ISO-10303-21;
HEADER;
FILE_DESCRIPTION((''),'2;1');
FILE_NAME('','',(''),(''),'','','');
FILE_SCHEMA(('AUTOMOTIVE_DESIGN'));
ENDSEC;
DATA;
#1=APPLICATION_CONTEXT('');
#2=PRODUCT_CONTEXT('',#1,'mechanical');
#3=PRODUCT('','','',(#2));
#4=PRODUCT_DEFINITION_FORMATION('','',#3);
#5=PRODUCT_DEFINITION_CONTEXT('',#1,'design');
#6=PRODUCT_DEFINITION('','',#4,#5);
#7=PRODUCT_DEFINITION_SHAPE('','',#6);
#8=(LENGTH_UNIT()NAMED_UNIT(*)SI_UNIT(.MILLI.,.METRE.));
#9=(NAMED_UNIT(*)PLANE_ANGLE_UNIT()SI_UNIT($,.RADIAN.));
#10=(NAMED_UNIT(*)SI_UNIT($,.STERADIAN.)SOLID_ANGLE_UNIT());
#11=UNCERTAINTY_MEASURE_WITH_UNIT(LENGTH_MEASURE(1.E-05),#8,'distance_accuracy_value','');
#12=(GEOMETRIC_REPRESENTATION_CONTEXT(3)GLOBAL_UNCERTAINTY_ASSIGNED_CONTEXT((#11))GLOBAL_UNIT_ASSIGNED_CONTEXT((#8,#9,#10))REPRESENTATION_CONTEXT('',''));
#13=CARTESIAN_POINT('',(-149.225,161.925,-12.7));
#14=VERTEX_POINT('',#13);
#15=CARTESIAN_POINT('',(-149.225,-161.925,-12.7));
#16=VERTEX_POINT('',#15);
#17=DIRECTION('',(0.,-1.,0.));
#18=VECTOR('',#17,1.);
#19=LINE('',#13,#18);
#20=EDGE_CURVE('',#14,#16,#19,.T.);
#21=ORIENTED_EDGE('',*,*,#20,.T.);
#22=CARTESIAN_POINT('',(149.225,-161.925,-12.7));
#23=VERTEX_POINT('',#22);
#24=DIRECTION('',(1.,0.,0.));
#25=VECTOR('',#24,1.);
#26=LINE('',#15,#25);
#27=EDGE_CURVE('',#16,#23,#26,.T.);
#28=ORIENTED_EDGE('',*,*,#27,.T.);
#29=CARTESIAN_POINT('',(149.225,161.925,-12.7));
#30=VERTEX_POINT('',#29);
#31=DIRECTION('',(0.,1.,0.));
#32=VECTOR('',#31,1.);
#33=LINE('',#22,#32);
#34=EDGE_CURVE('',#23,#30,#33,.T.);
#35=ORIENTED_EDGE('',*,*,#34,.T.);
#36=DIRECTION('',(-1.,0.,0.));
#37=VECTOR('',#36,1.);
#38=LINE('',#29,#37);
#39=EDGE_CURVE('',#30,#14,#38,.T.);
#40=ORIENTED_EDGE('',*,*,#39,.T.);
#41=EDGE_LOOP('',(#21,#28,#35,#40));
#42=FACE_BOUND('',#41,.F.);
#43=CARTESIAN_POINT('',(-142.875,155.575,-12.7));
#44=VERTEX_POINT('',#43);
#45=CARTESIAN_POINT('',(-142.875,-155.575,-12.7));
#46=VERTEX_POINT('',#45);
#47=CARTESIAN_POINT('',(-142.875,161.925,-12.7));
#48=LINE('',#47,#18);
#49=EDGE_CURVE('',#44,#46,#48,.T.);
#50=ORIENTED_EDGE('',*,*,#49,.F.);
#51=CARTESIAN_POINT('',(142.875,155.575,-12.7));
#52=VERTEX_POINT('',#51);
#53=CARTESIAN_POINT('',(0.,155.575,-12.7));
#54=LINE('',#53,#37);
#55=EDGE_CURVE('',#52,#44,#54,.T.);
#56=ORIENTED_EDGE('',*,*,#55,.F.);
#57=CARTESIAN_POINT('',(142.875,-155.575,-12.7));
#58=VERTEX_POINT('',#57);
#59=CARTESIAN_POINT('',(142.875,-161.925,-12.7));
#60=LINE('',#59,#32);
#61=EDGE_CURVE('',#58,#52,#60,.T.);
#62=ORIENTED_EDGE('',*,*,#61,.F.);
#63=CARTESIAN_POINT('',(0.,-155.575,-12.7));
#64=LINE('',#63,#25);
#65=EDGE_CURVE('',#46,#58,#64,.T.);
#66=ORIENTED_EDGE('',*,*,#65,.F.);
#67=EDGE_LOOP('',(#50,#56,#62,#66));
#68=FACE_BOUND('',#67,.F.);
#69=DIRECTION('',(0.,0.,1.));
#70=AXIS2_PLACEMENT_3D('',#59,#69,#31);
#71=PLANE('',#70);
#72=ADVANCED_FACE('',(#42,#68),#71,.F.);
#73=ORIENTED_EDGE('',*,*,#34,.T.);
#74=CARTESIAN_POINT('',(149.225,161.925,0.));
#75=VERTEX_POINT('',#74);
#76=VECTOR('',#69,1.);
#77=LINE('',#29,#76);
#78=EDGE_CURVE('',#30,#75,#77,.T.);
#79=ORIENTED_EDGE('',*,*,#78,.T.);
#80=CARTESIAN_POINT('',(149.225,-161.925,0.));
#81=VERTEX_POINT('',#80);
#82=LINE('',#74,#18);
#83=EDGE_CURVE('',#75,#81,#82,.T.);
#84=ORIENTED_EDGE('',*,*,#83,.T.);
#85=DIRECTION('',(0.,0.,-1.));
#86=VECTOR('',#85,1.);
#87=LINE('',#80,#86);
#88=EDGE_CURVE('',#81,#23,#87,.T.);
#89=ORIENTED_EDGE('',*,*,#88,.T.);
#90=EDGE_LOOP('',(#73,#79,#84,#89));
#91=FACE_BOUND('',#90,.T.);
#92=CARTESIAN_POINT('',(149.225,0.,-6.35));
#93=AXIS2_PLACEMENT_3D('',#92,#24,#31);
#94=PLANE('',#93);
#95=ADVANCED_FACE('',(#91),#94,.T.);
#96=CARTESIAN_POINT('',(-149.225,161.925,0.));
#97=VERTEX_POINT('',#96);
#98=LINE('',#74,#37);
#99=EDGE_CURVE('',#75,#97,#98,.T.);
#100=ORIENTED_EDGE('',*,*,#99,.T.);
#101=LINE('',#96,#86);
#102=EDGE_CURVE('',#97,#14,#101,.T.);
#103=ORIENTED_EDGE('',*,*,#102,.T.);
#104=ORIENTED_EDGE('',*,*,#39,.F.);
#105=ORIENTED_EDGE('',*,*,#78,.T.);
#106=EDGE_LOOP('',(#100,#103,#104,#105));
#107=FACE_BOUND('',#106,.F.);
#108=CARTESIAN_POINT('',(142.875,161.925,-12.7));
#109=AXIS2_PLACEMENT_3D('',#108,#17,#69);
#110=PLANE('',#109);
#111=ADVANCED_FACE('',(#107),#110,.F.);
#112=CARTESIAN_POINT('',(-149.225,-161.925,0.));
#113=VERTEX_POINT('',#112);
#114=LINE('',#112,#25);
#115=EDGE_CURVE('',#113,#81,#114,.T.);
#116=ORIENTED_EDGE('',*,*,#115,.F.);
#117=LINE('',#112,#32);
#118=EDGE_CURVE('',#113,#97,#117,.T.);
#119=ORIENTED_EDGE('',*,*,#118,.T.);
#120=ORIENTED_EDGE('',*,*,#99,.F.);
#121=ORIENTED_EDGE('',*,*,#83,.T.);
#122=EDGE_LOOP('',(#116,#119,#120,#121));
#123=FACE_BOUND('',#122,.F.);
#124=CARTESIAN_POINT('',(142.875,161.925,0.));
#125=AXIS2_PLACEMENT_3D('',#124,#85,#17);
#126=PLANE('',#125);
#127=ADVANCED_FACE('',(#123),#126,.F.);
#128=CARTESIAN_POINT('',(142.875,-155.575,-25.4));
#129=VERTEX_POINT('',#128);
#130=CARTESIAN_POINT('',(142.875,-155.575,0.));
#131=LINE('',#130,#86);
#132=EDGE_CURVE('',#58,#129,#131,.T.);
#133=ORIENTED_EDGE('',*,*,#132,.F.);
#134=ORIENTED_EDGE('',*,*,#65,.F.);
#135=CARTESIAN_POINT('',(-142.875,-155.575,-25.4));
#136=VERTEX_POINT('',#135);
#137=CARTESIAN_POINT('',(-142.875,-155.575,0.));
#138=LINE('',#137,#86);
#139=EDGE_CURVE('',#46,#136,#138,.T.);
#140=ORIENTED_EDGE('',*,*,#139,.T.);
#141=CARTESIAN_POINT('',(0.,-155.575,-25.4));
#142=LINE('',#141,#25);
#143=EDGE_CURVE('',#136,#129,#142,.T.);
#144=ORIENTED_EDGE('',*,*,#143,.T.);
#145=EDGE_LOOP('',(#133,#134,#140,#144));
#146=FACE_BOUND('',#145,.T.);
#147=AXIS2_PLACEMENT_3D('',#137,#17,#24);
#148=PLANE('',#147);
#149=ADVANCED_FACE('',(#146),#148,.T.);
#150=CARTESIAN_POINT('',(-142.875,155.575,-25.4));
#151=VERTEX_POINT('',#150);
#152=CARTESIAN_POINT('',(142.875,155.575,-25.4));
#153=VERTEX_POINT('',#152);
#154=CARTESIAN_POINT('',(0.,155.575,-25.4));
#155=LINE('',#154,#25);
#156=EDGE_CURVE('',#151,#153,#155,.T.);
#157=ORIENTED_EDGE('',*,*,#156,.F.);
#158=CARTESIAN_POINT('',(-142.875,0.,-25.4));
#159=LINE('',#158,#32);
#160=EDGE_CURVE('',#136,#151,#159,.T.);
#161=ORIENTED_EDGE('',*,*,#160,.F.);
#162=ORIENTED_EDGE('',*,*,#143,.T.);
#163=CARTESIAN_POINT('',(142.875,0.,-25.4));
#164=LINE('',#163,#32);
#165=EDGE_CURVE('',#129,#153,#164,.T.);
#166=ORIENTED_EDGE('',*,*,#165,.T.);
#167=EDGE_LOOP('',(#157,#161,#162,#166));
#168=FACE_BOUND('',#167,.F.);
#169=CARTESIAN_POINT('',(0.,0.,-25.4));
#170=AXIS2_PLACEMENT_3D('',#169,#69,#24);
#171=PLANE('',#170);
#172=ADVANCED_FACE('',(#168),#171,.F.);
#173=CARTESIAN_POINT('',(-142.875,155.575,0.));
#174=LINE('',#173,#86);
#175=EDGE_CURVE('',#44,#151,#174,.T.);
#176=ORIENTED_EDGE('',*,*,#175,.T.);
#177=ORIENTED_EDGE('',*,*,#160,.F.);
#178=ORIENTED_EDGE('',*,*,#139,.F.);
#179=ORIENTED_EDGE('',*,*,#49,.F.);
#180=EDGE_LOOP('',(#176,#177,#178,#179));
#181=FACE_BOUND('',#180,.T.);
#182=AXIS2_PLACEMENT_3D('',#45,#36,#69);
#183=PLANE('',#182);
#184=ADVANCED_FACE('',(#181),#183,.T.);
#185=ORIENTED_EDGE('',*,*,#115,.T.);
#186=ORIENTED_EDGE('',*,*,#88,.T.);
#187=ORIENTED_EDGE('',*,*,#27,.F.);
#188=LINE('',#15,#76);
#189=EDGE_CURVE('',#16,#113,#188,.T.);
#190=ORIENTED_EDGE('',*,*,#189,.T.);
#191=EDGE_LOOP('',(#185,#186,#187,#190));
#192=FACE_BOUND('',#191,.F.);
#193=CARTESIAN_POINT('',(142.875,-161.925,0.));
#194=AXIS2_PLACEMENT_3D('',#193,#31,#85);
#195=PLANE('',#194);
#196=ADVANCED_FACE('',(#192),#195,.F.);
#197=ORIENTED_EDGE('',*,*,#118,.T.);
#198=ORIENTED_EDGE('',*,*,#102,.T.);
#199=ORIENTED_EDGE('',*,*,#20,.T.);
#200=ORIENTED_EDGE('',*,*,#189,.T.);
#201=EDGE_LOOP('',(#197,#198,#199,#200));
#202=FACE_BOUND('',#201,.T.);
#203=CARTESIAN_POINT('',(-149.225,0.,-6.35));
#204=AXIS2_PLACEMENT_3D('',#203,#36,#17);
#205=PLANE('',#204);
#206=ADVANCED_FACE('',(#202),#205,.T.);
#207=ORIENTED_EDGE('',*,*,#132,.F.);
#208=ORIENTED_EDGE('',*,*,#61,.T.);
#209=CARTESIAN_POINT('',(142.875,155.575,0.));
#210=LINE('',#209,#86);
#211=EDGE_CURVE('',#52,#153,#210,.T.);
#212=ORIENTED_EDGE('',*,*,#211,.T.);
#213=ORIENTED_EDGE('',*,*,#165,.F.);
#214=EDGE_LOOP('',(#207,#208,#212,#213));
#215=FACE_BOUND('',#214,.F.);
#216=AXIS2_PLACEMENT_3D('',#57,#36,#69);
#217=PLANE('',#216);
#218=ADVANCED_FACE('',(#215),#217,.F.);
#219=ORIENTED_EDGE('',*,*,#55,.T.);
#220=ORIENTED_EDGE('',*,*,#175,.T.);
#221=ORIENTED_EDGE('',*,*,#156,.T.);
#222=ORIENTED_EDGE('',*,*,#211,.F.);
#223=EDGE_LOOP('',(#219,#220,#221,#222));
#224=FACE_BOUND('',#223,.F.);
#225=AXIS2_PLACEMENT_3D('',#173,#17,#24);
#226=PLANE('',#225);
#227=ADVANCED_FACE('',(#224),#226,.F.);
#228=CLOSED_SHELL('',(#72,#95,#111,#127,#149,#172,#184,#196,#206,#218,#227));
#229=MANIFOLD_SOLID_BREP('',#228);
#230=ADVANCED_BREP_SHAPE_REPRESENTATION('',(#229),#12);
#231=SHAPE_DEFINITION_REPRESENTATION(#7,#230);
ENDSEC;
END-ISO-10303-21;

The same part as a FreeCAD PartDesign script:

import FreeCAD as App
import Part
import Sketcher

V = App.Vector
Q = App.Units.Quantity

doc = App.newDocument("Part")
body = doc.addObject("PartDesign::Body", "Body")

sketch1 = body.newObject("Sketcher::SketchObject", "Sketch")
sketch1.AttachmentSupport = (doc.getObject("XY_Plane"), [""])
sketch1.MapMode = "FlatFace"
sketch1.addGeometry(Part.LineSegment(V(-143, 156, 0), V(-143, -156, 0)), False)
sketch1.addGeometry(Part.LineSegment(V(-143, -156, 0), V(143, -156, 0)), False)
sketch1.addGeometry(Part.LineSegment(V(143, -156, 0), V(143, 156, 0)), False)
sketch1.addGeometry(Part.LineSegment(V(143, 156, 0), V(-143, 156, 0)), False)
sketch1.addConstraint(Sketcher.Constraint("Coincident", 0, 2, 1, 1))
sketch1.addConstraint(Sketcher.Constraint("Coincident", 1, 2, 2, 1))
sketch1.addConstraint(Sketcher.Constraint("Coincident", 2, 2, 3, 1))
sketch1.addConstraint(Sketcher.Constraint("Coincident", 3, 2, 0, 1))
sketch1.addConstraint(Sketcher.Constraint("Vertical", 0))
sketch1.addConstraint(Sketcher.Constraint("Horizontal", 1))
sketch1.addConstraint(Sketcher.Constraint("Vertical", 2))
sketch1.addConstraint(Sketcher.Constraint("Horizontal", 3))
sketch1.addConstraint(Sketcher.Constraint("Symmetric", 0, 2, 2, 2, -1, 1))
sketch1.addConstraint(Sketcher.Constraint("DistanceX", 1, 1, 1, 2, Q("11.25 in")))
sketch1.addConstraint(Sketcher.Constraint("DistanceY", 0, 2, 0, 1, Q("12.25 in")))
pad1 = body.newObject("PartDesign::Pad", "Pad")
pad1.Profile = sketch1
pad1.Length = Q("1 in")
pad1.Reversed = True

sketch2 = body.newObject("Sketcher::SketchObject", "Sketch001")
sketch2.AttachmentSupport = (doc.getObject("XZ_Plane"), [""])
sketch2.MapMode = "FlatFace"
sketch2.AttachmentOffset = App.Placement(V(0, 0, -6.125 * 25.4), App.Rotation())
sketch2.addGeometry(Part.LineSegment(V(143, 0, 0), V(143, -13, 0)), False)
sketch2.addGeometry(Part.LineSegment(V(143, -13, 0), V(-143, -13, 0)), False)
sketch2.addGeometry(Part.LineSegment(V(-143, -13, 0), V(-143, 0, 0)), False)
sketch2.addGeometry(Part.LineSegment(V(-143, 0, 0), V(143, 0, 0)), False)
sketch2.addConstraint(Sketcher.Constraint("Coincident", 0, 2, 1, 1))
sketch2.addConstraint(Sketcher.Constraint("Coincident", 1, 2, 2, 1))
sketch2.addConstraint(Sketcher.Constraint("Coincident", 2, 2, 3, 1))
sketch2.addConstraint(Sketcher.Constraint("Coincident", 3, 2, 0, 1))
sketch2.addConstraint(Sketcher.Constraint("Vertical", 0))
sketch2.addConstraint(Sketcher.Constraint("Horizontal", 1))
sketch2.addConstraint(Sketcher.Constraint("Vertical", 2))
sketch2.addConstraint(Sketcher.Constraint("Horizontal", 3))
sketch2.addConstraint(Sketcher.Constraint("Symmetric", 2, 2, 3, 2, -1, 1))
sketch2.addConstraint(Sketcher.Constraint("DistanceY", 0, 2, 0, 1, Q("0.5 in")))
sketch2.addConstraint(Sketcher.Constraint("DistanceX", 1, 2, 1, 1, Q("11.25 in")))
pad2 = body.newObject("PartDesign::Pad", "Pad001")
pad2.Profile = sketch2
pad2.Length = Q("0.25 in")
pad2.Reversed = True

sketch3 = body.newObject("Sketcher::SketchObject", "Sketch002")
sketch3.AttachmentSupport = (doc.getObject("XZ_Plane"), [""])
sketch3.MapMode = "FlatFace"
sketch3.AttachmentOffset = App.Placement(V(0, 0, 6.125 * 25.4), App.Rotation())
sketch3.addGeometry(Part.LineSegment(V(-143, 0, 0), V(-143, -13, 0)), False)
sketch3.addGeometry(Part.LineSegment(V(-143, -13, 0), V(143, -13, 0)), False)
sketch3.addGeometry(Part.LineSegment(V(143, -13, 0), V(143, 0, 0)), False)
sketch3.addGeometry(Part.LineSegment(V(143, 0, 0), V(-143, 0, 0)), False)
sketch3.addConstraint(Sketcher.Constraint("Coincident", 0, 2, 1, 1))
sketch3.addConstraint(Sketcher.Constraint("Coincident", 1, 2, 2, 1))
sketch3.addConstraint(Sketcher.Constraint("Coincident", 2, 2, 3, 1))
sketch3.addConstraint(Sketcher.Constraint("Coincident", 3, 2, 0, 1))
sketch3.addConstraint(Sketcher.Constraint("Vertical", 0))
sketch3.addConstraint(Sketcher.Constraint("Horizontal", 1))
sketch3.addConstraint(Sketcher.Constraint("Vertical", 2))
sketch3.addConstraint(Sketcher.Constraint("Horizontal", 3))
sketch3.addConstraint(Sketcher.Constraint("Symmetric", 2, 2, 3, 2, -1, 1))
sketch3.addConstraint(Sketcher.Constraint("DistanceY", 0, 2, 0, 1, Q("0.5 in")))
sketch3.addConstraint(Sketcher.Constraint("DistanceX", 1, 1, 1, 2, Q("11.25 in")))
pad3 = body.newObject("PartDesign::Pad", "Pad002")
pad3.Profile = sketch3
pad3.Length = Q("0.25 in")

sketch4 = body.newObject("Sketcher::SketchObject", "Sketch003")
sketch4.AttachmentSupport = (doc.getObject("YZ_Plane"), [""])
sketch4.MapMode = "FlatFace"
sketch4.AttachmentOffset = App.Placement(V(0, 0, -5.625 * 25.4), App.Rotation())
sketch4.addGeometry(Part.LineSegment(V(-162, 0, 0), V(162, 0, 0)), False)
sketch4.addGeometry(Part.LineSegment(V(162, 0, 0), V(162, -13, 0)), False)
sketch4.addGeometry(Part.LineSegment(V(162, -13, 0), V(-162, -13, 0)), False)
sketch4.addGeometry(Part.LineSegment(V(-162, -13, 0), V(-162, 0, 0)), False)
sketch4.addConstraint(Sketcher.Constraint("Coincident", 0, 2, 1, 1))
sketch4.addConstraint(Sketcher.Constraint("Coincident", 1, 2, 2, 1))
sketch4.addConstraint(Sketcher.Constraint("Coincident", 2, 2, 3, 1))
sketch4.addConstraint(Sketcher.Constraint("Coincident", 3, 2, 0, 1))
sketch4.addConstraint(Sketcher.Constraint("Horizontal", 0))
sketch4.addConstraint(Sketcher.Constraint("Vertical", 1))
sketch4.addConstraint(Sketcher.Constraint("Horizontal", 2))
sketch4.addConstraint(Sketcher.Constraint("Vertical", 3))
sketch4.addConstraint(Sketcher.Constraint("Symmetric", 0, 2, 3, 2, -1, 1))
sketch4.addConstraint(Sketcher.Constraint("DistanceY", 1, 2, 1, 1, Q("0.5 in")))
sketch4.addConstraint(Sketcher.Constraint("DistanceX", 0, 1, 0, 2, Q("12.75 in")))
pad4 = body.newObject("PartDesign::Pad", "Pad003")
pad4.Profile = sketch4
pad4.Length = Q("0.25 in")
pad4.Reversed = True

sketch5 = body.newObject("Sketcher::SketchObject", "Sketch004")
sketch5.AttachmentSupport = (doc.getObject("YZ_Plane"), [""])
sketch5.MapMode = "FlatFace"
sketch5.AttachmentOffset = App.Placement(V(0, 0, 5.625 * 25.4), App.Rotation())
sketch5.addGeometry(Part.LineSegment(V(162, 0, 0), V(-162, 0, 0)), False)
sketch5.addGeometry(Part.LineSegment(V(-162, 0, 0), V(-162, -13, 0)), False)
sketch5.addGeometry(Part.LineSegment(V(-162, -13, 0), V(162, -13, 0)), False)
sketch5.addGeometry(Part.LineSegment(V(162, -13, 0), V(162, 0, 0)), False)
sketch5.addConstraint(Sketcher.Constraint("Coincident", 0, 2, 1, 1))
sketch5.addConstraint(Sketcher.Constraint("Coincident", 1, 2, 2, 1))
sketch5.addConstraint(Sketcher.Constraint("Coincident", 2, 2, 3, 1))
sketch5.addConstraint(Sketcher.Constraint("Coincident", 3, 2, 0, 1))
sketch5.addConstraint(Sketcher.Constraint("Horizontal", 0))
sketch5.addConstraint(Sketcher.Constraint("Vertical", 1))
sketch5.addConstraint(Sketcher.Constraint("Horizontal", 2))
sketch5.addConstraint(Sketcher.Constraint("Vertical", 3))
sketch5.addConstraint(Sketcher.Constraint("Symmetric", 0, 2, 3, 2, -1, 1))
sketch5.addConstraint(Sketcher.Constraint("DistanceY", 1, 2, 1, 1, Q("0.5 in")))
sketch5.addConstraint(Sketcher.Constraint("DistanceX", 0, 2, 0, 1, Q("12.75 in")))
pad5 = body.newObject("PartDesign::Pad", "Pad004")
pad5.Profile = sketch5
pad5.Length = Q("0.25 in")

doc.recompute()
